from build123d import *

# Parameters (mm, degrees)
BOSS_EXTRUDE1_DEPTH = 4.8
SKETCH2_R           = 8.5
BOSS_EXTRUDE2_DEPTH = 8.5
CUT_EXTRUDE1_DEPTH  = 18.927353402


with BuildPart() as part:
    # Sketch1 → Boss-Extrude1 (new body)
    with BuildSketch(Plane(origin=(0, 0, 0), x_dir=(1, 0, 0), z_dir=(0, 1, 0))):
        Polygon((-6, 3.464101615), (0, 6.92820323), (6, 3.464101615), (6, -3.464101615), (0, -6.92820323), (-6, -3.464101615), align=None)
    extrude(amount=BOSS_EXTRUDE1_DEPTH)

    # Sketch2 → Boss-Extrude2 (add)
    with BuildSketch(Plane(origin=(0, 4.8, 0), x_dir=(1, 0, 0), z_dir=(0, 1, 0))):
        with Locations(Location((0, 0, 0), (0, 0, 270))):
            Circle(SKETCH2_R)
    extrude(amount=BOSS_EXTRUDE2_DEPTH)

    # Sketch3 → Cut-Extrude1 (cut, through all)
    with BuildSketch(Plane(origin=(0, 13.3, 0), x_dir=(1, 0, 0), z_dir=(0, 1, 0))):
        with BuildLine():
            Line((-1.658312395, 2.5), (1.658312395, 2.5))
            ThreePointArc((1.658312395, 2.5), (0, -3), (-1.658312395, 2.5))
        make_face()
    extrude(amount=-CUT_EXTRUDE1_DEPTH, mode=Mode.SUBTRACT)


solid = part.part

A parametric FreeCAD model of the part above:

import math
import FreeCAD as App
import Part
import Sketcher

V = App.Vector
Q = App.Units.Quantity

doc = App.newDocument("Part")
body = doc.addObject("PartDesign::Body", "Body")

sketch1 = doc.addObject("Sketcher::SketchObject", "Sketch")
body.addObject(sketch1)
sketch1.AttachmentSupport = (doc.XZ_Plane, [""])
sketch1.MapMode = "FlatFace"
sketch1.addGeometry([
    Part.LineSegment(V(0, -7, 0), V(-6, -3, 0)),
    Part.LineSegment(V(-6, -3, 0), V(-6, 3, 0)),
    Part.LineSegment(V(-6, 3, 0), V(0, 7, 0)),
    Part.LineSegment(V(0, 7, 0), V(6, 3, 0)),
    Part.LineSegment(V(6, 3, 0), V(6, -3, 0)),
    Part.LineSegment(V(6, -3, 0), V(0, -7, 0)),
], False)
sketch1.addConstraint([
    Sketcher.Constraint("Coincident", 0, 2, 1, 1),
    Sketcher.Constraint("Coincident", 1, 2, 2, 1),
    Sketcher.Constraint("Coincident", 2, 2, 3, 1),
    Sketcher.Constraint("Coincident", 3, 2, 4, 1),
    Sketcher.Constraint("Coincident", 4, 2, 5, 1),
    Sketcher.Constraint("Coincident", 5, 2, 0, 1),
    Sketcher.Constraint("Vertical", 1),
    Sketcher.Constraint("Vertical", 4),
    Sketcher.Constraint("Symmetric", 0, 2, 3, 2, -1, 1),
    Sketcher.Constraint("Symmetric", 2, 2, 5, 2, -1, 1),
    Sketcher.Constraint("PointOnObject", 2, 2, -2),
    Sketcher.Constraint("Parallel", 2, 5),
    Sketcher.Constraint("Horizontal", 1, 2, 3, 2),
    Sketcher.Constraint("Angle", 0, Q("150 deg")),
    Sketcher.Constraint("DistanceX", 0, 2, -1, 1, Q("6 mm")),
    Sketcher.Constraint("DistanceY", 0, 2, -1, 1, Q("3.464102 mm")),
])
pad1 = doc.addObject("PartDesign::Pad", "Pad")
body.addObject(pad1)
pad1.Profile = sketch1
pad1.Length = 4.8
pad1.Reversed = True

sketch2 = doc.addObject("Sketcher::SketchObject", "Sketch001")
body.addObject(sketch2)
sketch2.AttachmentSupport = (doc.XZ_Plane, [""])
sketch2.MapMode = "FlatFace"
sketch2.AttachmentOffset = App.Placement(V(0, 0, -4.8), App.Rotation())
sketch2.addGeometry(Part.Circle(V(0, 0, 0), V(0, 0, 1), 8), False)
sketch2.addConstraint([
    Sketcher.Constraint("Coincident", 0, 3, -1, 1),
    Sketcher.Constraint("Diameter", 0, Q("17 mm")),
])
pad2 = doc.addObject("PartDesign::Pad", "Pad001")
body.addObject(pad2)
pad2.Profile = sketch2
pad2.Length = 8.5
pad2.Reversed = True

sketch3 = doc.addObject("Sketcher::SketchObject", "Sketch002")
body.addObject(sketch3)
sketch3.AttachmentSupport = (doc.XZ_Plane, [""])
sketch3.MapMode = "FlatFace"
sketch3.AttachmentOffset = App.Placement(V(0, 0, -13.3), App.Rotation())
sketch3.addGeometry([
    Part.LineSegment(V(1.7, -2.5, 0), V(-1.7, -2.5, 0)),
    Part.ArcOfCircle(Part.Circle(V(0, 0, 0), V(0, 0, 1), 3), math.radians(-56), math.radians(236)),
], False)
sketch3.addConstraint([
    Sketcher.Constraint("Coincident", 0, 1, 1, 1),
    Sketcher.Constraint("Coincident", 1, 2, 0, 2),
    Sketcher.Constraint("Horizontal", 0),
    Sketcher.Constraint("Coincident", 1, 3, -1, 1),
    Sketcher.Constraint("Radius", 1, Q("3 mm")),
    Sketcher.Constraint("DistanceY", 0, 1, -1, 1, Q("2.5 mm")),
])
pocket1 = doc.addObject("PartDesign::Pocket", "Pocket")
body.addObject(pocket1)
pocket1.Profile = sketch3
pocket1.Type = "ThroughAll"
pocket1.Reversed = True

doc.recompute()
